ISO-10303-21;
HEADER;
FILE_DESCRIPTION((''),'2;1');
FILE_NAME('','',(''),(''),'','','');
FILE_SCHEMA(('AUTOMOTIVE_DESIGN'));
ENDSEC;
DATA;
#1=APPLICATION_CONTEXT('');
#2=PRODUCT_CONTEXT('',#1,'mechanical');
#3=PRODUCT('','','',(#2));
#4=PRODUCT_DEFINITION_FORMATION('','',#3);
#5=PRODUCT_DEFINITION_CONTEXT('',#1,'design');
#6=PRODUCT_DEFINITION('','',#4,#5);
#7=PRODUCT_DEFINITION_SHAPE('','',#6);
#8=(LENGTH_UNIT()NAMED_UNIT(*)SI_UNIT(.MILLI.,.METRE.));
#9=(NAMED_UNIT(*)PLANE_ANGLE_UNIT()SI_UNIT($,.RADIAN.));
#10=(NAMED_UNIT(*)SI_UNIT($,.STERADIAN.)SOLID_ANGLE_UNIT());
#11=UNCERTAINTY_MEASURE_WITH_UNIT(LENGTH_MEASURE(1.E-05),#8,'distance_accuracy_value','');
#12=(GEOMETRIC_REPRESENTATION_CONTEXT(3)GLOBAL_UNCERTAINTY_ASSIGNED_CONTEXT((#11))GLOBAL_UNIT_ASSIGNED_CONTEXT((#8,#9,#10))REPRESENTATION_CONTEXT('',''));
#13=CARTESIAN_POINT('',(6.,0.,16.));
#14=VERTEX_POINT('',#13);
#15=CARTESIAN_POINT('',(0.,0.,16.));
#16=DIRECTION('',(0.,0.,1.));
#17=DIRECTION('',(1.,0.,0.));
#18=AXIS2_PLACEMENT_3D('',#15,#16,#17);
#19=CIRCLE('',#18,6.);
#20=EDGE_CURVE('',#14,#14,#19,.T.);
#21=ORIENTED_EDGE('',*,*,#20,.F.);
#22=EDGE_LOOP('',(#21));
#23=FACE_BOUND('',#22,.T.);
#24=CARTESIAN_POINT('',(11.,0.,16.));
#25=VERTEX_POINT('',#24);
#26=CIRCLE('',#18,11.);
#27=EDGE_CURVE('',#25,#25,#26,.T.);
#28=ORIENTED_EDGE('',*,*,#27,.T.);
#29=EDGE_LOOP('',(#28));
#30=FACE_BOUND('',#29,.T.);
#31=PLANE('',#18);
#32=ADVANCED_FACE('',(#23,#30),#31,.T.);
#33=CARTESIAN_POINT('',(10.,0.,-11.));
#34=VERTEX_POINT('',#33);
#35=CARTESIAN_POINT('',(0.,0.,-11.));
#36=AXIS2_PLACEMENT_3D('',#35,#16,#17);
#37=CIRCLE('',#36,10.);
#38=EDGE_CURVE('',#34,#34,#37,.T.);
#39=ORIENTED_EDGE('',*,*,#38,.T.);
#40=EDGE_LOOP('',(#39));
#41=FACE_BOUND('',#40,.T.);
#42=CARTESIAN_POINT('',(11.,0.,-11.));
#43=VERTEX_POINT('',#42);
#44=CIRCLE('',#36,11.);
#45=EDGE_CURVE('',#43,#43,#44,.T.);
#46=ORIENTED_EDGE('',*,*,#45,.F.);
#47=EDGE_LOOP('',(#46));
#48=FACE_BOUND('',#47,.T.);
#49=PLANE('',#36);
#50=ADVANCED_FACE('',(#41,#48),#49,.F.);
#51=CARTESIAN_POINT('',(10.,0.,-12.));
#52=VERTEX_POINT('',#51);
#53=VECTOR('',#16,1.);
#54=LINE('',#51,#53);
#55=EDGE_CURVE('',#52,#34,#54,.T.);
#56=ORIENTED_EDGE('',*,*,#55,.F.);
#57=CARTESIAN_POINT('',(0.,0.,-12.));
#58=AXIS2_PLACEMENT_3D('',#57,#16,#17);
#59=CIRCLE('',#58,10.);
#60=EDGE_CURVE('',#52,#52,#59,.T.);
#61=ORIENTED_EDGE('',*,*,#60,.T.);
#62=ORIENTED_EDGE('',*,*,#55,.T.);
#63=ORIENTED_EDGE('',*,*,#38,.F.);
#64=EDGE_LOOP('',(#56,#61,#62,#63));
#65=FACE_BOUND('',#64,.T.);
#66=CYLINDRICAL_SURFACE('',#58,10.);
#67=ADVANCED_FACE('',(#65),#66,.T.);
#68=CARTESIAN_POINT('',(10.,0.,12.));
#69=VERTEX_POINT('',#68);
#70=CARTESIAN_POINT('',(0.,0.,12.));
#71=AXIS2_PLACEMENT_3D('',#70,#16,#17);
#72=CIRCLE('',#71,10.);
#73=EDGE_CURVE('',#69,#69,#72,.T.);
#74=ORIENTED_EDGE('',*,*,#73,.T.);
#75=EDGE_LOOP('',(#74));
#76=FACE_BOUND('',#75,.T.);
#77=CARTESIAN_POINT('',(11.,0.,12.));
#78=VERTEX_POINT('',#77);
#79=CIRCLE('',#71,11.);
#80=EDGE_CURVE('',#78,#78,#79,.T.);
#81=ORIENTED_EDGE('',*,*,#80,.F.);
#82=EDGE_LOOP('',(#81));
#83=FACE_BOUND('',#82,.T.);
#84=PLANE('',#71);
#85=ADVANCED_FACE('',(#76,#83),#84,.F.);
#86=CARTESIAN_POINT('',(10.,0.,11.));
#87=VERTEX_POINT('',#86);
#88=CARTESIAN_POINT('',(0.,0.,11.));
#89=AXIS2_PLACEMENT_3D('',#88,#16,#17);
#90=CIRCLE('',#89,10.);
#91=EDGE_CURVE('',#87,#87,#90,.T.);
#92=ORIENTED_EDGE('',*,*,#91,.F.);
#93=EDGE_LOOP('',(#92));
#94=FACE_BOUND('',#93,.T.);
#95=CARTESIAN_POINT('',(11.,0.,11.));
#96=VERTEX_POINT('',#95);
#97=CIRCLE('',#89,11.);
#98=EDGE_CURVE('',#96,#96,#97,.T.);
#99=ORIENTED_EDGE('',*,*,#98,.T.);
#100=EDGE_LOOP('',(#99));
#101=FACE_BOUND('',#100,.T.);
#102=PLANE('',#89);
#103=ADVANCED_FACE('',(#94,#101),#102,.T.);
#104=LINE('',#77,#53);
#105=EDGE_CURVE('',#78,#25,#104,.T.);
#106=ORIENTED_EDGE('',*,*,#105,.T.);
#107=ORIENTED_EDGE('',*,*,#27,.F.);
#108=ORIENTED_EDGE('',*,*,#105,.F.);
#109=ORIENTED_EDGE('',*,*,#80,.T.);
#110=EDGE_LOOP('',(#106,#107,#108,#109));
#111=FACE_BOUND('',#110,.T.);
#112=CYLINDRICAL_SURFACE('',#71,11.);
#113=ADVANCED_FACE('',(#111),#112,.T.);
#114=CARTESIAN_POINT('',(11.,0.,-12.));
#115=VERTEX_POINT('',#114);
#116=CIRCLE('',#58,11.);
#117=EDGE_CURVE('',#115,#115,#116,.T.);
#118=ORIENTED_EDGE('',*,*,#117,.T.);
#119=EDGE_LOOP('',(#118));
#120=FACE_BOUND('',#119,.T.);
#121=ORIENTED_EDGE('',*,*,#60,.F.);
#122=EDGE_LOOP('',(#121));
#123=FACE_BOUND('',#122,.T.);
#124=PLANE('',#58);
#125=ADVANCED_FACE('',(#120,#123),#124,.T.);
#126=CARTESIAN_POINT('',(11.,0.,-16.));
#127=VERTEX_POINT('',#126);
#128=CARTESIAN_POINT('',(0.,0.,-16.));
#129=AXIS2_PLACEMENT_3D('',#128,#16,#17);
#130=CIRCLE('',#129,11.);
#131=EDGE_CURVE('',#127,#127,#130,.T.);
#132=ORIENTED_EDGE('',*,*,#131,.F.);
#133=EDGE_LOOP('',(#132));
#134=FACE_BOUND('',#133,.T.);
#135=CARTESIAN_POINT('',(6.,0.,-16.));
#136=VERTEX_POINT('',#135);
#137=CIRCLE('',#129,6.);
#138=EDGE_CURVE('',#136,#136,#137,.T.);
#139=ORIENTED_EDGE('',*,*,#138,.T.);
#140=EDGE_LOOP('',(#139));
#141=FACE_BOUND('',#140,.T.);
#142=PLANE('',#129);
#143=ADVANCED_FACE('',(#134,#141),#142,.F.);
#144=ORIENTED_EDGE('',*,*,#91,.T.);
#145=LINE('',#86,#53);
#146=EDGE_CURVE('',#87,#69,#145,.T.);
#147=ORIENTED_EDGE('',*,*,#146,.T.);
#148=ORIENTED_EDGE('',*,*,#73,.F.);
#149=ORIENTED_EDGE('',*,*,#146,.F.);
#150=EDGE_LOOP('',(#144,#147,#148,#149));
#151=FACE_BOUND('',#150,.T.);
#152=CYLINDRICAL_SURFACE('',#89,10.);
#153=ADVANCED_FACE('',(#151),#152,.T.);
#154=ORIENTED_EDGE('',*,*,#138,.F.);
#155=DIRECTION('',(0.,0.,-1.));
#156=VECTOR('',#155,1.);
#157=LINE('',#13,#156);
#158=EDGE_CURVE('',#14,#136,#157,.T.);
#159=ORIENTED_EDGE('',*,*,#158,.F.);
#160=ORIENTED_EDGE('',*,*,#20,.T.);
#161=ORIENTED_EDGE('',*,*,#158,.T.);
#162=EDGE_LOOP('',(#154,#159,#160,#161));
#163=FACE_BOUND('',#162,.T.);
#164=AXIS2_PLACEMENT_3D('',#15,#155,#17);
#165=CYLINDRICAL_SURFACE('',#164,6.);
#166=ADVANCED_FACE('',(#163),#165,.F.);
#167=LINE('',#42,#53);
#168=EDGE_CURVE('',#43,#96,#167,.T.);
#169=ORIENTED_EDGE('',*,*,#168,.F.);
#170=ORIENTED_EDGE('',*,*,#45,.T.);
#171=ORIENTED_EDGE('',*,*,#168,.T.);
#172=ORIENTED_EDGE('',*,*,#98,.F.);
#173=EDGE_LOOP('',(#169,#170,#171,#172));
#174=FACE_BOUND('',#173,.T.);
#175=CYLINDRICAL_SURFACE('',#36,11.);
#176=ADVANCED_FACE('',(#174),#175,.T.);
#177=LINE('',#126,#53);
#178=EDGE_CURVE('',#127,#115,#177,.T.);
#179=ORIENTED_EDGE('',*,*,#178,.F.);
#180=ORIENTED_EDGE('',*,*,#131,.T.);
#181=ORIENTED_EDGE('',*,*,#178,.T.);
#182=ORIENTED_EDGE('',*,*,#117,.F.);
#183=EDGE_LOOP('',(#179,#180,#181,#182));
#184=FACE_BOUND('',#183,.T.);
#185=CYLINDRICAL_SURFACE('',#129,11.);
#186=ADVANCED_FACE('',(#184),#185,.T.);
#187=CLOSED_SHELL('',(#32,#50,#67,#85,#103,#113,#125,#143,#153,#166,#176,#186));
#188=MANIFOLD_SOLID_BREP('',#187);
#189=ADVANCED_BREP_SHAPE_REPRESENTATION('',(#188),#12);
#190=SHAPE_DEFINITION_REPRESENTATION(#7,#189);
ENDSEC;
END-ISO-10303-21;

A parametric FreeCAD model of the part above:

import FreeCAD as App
import Part
import Sketcher
from FreeCAD import Vector
Q = App.Units.Quantity

doc = App.newDocument("Part")
body = doc.addObject("PartDesign::Body", "Body")

# Sketch on XZ plane
sketch1 = doc.addObject("Sketcher::SketchObject", "Sketch")
body.addObject(sketch1)
sketch1.AttachmentSupport = (doc.XZ_Plane, [""])
sketch1.MapMode = "FlatFace"
sketch1.addGeometry([
    Part.LineSegment(Vector(6, 16, 0), Vector(6, -16, 0)),  # 0
    Part.LineSegment(Vector(6, -16, 0), Vector(11, -16, 0)),  # 1
    Part.LineSegment(Vector(11, -16, 0), Vector(11, -12, 0)),  # 2
    Part.LineSegment(Vector(11, -12, 0), Vector(10, -12, 0)),  # 3
    Part.LineSegment(Vector(10, -12, 0), Vector(10, -11, 0)),  # 4
    Part.LineSegment(Vector(10, -11, 0), Vector(11, -11, 0)),  # 5
    Part.LineSegment(Vector(11, -11, 0), Vector(11, 11, 0)),  # 6
    Part.LineSegment(Vector(11, 11, 0), Vector(10, 11, 0)),  # 7
    Part.LineSegment(Vector(10, 11, 0), Vector(10, 12, 0)),  # 8
    Part.LineSegment(Vector(10, 12, 0), Vector(11, 12, 0)),  # 9
    Part.LineSegment(Vector(11, 12, 0), Vector(11, 16, 0)),  # 10
    Part.LineSegment(Vector(11, 16, 0), Vector(6, 16, 0)),  # 11
], False)
sketch1.addConstraint([
    Sketcher.Constraint("Coincident", 0, 2, 1, 1),
    Sketcher.Constraint("Coincident", 1, 2, 2, 1),
    Sketcher.Constraint("Coincident", 2, 2, 3, 1),
    Sketcher.Constraint("Coincident", 3, 2, 4, 1),
    Sketcher.Constraint("Coincident", 4, 2, 5, 1),
    Sketcher.Constraint("Coincident", 5, 2, 6, 1),
    Sketcher.Constraint("Coincident", 6, 2, 7, 1),
    Sketcher.Constraint("Coincident", 7, 2, 8, 1),
    Sketcher.Constraint("Coincident", 8, 2, 9, 1),
    Sketcher.Constraint("Coincident", 9, 2, 10, 1),
    Sketcher.Constraint("Coincident", 10, 2, 11, 1),
    Sketcher.Constraint("Coincident", 11, 2, 0, 1),
    Sketcher.Constraint("Vertical", 0),
    Sketcher.Constraint("Horizontal", 1),
    Sketcher.Constraint("Vertical", 2),
    Sketcher.Constraint("Horizontal", 3),
    Sketcher.Constraint("Vertical", 4),
    Sketcher.Constraint("Horizontal", 5),
    Sketcher.Constraint("Vertical", 6),
    Sketcher.Constraint("Horizontal", 7),
    Sketcher.Constraint("Vertical", 8),
    Sketcher.Constraint("Horizontal", 9),
    Sketcher.Constraint("Vertical", 10),
    Sketcher.Constraint("Horizontal", 11),
    Sketcher.Constraint("Symmetric", 4, 2, 7, 2, -1),
    Sketcher.Constraint("Symmetric", 2, 2, 9, 2, -1),
    Sketcher.Constraint("Vertical", 2, 2, 5, 2),
    Sketcher.Constraint("Equal", 9, 4),
    Sketcher.Constraint("Equal", 2, 10),
    Sketcher.Constraint("DistanceX", 1, 1, 1, 2, Q("5 mm")),
    Sketcher.Constraint("DistanceX", 3, 2, 3, 1, Q("1 mm")),
    Sketcher.Constraint("DistanceY", 0, 2, 0, 1, Q("32 mm")),
    Sketcher.Constraint("DistanceY", 2, 1, 2, 2, Q("4 mm")),
    Sketcher.Constraint("DistanceX", -1, 1, 0, 2, Q("6 mm")),
])
revolution = doc.addObject("PartDesign::Revolution", "Revolution")
body.addObject(revolution)
revolution.Profile = sketch1
revolution.ReferenceAxis = (sketch1, ["V_Axis"])
revolution.Angle = 360

doc.recompute()
